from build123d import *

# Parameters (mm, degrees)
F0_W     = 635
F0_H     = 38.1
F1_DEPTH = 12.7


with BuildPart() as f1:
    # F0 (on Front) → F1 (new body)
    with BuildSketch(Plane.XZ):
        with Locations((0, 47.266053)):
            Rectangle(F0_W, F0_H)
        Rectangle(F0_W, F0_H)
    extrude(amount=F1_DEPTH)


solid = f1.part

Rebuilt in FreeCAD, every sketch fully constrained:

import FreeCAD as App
import Part
import Sketcher
from FreeCAD import Vector
Q = App.Units.Quantity


def add_polygon(sketch, points):
    """Adds a closed chain of lines whose ends are joined by coincident constraints."""
    first, n = sketch.GeometryCount, len(points)
    for a, b in zip(points, points[1:] + points[:1]):
        sketch.addGeometry(Part.LineSegment(App.Vector(*a, 0), App.Vector(*b, 0)), False)
    for i in range(n):
        sketch.addConstraint(Sketcher.Constraint("Coincident", first + i, 2, first + (i + 1) % n, 1))

doc = App.newDocument("Part")
body = doc.addObject("PartDesign::Body", "Body")
body.AllowCompound = True

sketch1 = body.newObject("Sketcher::SketchObject", "Sketch")
sketch1.AttachmentSupport = (doc.getObject("XZ_Plane"), [""])
sketch1.MapMode = "FlatFace"
add_polygon(sketch1, [(-318, 66), (-318, 28), (318, 28), (318, 66)])
add_polygon(sketch1, [(-318, 19), (-318, -19), (318, -19), (318, 19)])
sketch1.addConstraint([
    Sketcher.Constraint("Vertical", 0),
    Sketcher.Constraint("Horizontal", 1),
    Sketcher.Constraint("Vertical", 2),
    Sketcher.Constraint("Horizontal", 3),
    Sketcher.Constraint("Vertical", 4),
    Sketcher.Constraint("Horizontal", 5),
    Sketcher.Constraint("Vertical", 6),
    Sketcher.Constraint("Horizontal", 7),
    Sketcher.Constraint("Symmetric", 4, 2, 6, 2, -1, 1),
    Sketcher.Constraint("Vertical", 3, 2, 4, 2),
    Sketcher.Constraint("Vertical", 2, 2, 5, 2),
    Sketcher.Constraint("Equal", 2, 4),
    Sketcher.Constraint("DistanceX", 1, 1, 1, 2, Q("25 in")),
    Sketcher.Constraint("DistanceY", 0, 2, 0, 1, Q("1.5 in")),
    Sketcher.Constraint("DistanceY", -1, 1, 0, 2, 28.216053),
])
pad1 = body.newObject("PartDesign::Pad", "Pad")
pad1.Profile = sketch1
pad1.Length = Q("0.5 in")

doc.recompute()
